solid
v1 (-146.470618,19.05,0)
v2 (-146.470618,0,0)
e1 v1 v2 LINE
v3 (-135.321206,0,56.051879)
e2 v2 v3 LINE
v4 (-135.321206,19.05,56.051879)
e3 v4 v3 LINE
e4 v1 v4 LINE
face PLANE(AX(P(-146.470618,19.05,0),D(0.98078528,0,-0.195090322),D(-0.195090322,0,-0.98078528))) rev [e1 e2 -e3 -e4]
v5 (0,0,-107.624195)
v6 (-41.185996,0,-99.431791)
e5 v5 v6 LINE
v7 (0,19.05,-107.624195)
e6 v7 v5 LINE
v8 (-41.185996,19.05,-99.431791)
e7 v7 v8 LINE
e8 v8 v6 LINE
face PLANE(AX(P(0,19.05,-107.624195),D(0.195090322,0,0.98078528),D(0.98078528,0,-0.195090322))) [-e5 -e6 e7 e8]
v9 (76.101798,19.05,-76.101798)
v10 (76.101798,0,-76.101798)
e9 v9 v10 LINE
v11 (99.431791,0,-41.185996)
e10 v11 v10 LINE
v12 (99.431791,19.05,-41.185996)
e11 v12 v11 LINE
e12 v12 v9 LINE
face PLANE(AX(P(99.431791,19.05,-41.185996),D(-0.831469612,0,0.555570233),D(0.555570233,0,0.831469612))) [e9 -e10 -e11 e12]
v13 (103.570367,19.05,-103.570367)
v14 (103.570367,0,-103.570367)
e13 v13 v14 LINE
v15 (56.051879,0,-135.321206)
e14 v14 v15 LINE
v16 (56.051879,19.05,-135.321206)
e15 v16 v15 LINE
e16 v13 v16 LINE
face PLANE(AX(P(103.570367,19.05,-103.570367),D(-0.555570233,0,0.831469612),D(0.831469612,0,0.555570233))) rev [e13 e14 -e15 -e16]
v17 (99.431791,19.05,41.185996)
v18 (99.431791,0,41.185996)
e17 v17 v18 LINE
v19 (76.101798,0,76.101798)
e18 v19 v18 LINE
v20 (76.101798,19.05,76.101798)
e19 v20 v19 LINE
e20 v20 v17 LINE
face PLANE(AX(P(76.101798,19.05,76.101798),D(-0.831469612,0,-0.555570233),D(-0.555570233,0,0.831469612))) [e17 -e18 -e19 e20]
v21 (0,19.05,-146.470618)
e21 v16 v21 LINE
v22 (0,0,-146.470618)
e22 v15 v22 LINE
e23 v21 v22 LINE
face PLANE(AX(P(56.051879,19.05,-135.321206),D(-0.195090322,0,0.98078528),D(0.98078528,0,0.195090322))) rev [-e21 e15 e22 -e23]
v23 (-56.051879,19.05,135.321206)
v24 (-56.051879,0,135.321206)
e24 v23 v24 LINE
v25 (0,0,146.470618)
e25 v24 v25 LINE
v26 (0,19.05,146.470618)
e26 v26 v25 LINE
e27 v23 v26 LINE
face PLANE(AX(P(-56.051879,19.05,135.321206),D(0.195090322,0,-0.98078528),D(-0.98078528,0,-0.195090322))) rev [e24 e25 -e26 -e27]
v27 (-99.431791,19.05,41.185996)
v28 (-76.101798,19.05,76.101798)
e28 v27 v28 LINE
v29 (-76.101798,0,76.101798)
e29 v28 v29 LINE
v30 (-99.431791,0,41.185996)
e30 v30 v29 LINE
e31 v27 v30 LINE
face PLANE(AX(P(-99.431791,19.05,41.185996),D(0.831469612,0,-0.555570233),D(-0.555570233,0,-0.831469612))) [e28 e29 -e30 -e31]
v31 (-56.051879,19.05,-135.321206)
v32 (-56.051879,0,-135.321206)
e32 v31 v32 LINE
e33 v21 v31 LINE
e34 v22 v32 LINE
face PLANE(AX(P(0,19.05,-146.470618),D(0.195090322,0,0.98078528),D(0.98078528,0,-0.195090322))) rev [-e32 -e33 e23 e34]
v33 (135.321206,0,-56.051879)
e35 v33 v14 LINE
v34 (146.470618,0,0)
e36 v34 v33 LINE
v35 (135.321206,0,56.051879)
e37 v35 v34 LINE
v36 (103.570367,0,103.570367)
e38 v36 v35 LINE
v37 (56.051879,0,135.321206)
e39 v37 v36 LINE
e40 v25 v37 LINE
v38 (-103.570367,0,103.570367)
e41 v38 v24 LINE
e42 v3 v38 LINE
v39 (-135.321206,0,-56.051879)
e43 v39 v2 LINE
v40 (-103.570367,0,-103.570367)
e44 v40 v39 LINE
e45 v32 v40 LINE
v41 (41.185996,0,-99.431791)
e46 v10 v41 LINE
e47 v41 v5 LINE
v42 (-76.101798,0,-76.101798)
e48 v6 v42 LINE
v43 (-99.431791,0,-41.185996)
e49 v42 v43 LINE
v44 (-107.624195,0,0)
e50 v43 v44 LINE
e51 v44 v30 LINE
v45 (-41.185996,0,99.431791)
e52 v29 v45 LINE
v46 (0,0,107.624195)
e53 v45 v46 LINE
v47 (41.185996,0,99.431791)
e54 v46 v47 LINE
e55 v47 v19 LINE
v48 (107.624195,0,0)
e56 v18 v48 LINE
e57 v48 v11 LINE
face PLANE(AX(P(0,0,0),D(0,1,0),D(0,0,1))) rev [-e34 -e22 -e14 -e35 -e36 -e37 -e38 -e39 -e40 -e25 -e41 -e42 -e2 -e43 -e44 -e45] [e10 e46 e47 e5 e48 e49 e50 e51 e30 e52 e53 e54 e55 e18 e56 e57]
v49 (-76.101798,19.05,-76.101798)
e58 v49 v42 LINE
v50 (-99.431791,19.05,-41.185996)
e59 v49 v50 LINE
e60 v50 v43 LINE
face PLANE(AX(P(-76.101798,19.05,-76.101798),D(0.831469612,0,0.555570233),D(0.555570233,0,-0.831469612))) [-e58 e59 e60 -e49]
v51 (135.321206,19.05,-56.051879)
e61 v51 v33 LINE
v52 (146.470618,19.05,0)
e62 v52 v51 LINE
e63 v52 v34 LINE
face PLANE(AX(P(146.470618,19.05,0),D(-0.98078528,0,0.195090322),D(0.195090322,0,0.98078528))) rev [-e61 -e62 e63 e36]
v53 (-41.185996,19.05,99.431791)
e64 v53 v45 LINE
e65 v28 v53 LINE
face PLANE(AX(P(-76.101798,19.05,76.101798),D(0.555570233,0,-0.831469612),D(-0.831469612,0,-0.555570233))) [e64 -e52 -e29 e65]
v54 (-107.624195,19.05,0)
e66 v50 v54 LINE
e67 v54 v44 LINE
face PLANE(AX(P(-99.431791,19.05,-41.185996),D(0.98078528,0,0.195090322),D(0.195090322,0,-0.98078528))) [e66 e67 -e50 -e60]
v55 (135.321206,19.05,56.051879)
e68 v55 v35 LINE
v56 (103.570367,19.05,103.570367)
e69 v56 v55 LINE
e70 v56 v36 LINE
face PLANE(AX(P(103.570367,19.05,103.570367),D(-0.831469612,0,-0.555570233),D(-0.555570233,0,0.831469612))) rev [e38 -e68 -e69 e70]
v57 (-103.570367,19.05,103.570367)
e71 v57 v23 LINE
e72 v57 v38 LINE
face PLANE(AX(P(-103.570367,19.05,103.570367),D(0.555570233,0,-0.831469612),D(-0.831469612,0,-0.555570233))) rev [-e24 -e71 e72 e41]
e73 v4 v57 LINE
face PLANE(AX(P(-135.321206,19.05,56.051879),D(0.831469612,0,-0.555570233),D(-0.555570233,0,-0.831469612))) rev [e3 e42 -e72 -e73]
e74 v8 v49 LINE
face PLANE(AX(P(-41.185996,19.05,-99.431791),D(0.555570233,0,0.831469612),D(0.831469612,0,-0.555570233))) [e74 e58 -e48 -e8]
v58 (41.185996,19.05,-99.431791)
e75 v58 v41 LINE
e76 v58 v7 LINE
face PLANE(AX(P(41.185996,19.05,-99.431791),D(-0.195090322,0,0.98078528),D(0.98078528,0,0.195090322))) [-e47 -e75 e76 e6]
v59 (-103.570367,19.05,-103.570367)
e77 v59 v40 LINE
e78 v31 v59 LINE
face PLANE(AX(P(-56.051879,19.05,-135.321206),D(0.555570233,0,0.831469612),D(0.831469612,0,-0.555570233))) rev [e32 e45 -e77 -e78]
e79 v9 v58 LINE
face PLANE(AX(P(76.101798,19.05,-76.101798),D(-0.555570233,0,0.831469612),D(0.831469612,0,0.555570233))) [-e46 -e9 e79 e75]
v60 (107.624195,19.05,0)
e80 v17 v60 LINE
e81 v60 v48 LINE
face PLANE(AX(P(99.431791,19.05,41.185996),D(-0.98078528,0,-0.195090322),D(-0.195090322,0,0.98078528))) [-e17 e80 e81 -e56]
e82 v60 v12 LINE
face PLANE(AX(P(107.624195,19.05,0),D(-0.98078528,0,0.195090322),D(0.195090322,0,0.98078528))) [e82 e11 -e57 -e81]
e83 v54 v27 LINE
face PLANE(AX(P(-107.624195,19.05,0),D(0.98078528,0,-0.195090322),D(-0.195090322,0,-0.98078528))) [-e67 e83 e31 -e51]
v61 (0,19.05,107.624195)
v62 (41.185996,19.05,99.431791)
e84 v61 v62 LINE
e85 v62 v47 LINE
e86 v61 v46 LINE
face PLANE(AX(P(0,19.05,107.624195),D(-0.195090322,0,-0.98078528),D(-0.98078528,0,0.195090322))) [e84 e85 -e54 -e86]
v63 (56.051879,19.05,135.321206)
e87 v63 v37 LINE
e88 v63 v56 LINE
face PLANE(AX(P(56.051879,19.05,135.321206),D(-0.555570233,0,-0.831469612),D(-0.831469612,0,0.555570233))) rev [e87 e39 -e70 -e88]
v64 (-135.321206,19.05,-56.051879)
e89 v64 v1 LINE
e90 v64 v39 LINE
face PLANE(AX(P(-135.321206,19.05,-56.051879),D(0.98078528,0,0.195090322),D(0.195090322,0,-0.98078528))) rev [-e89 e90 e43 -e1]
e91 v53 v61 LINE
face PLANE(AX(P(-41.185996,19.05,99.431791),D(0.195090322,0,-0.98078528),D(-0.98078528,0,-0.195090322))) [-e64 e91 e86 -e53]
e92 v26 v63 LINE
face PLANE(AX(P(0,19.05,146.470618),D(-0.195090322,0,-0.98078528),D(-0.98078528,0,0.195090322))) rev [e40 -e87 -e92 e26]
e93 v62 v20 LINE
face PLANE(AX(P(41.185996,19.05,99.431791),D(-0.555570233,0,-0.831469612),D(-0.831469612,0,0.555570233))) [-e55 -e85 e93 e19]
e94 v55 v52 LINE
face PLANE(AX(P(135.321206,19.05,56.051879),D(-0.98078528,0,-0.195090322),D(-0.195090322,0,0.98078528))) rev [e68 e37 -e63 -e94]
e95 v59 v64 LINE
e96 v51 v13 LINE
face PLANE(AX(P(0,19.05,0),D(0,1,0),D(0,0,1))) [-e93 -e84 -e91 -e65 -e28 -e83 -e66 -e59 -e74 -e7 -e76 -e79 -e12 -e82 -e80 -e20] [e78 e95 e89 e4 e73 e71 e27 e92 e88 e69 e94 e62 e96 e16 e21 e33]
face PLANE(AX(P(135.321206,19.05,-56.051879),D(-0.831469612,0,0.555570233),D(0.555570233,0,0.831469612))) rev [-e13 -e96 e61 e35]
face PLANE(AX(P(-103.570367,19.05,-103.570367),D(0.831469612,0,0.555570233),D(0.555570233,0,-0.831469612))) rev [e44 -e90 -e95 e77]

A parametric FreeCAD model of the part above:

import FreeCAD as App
import Part
import Sketcher

V = App.Vector
Q = App.Units.Quantity

doc = App.newDocument("Part")
body = doc.addObject("PartDesign::Body", "Body")

sketch1 = doc.addObject("Sketcher::SketchObject", "Sketch")
body.addObject(sketch1)
sketch1.AttachmentSupport = (doc.XZ_Plane, [""])
sketch1.MapMode = "FlatFace"
sketch1.addGeometry(Part.LineSegment(V(146, 0, 0), V(135, -56, 0)), False)
sketch1.addGeometry(Part.LineSegment(V(135, -56, 0), V(104, -104, 0)), False)
sketch1.addGeometry(Part.LineSegment(V(104, -104, 0), V(56, -135, 0)), False)
sketch1.addGeometry(Part.LineSegment(V(56, -135, 0), V(0, -146, 0)), False)
sketch1.addGeometry(Part.LineSegment(V(0, -146, 0), V(-56, -135, 0)), False)
sketch1.addGeometry(Part.LineSegment(V(-56, -135, 0), V(-104, -104, 0)), False)
sketch1.addGeometry(Part.LineSegment(V(-104, -104, 0), V(-135, -56, 0)), False)
sketch1.addGeometry(Part.LineSegment(V(-135, -56, 0), V(-146, 0, 0)), False)
sketch1.addGeometry(Part.LineSegment(V(-146, 0, 0), V(-135, 56, 0)), False)
sketch1.addGeometry(Part.LineSegment(V(-135, 56, 0), V(-104, 104, 0)), False)
sketch1.addGeometry(Part.LineSegment(V(-104, 104, 0), V(-56, 135, 0)), False)
sketch1.addGeometry(Part.LineSegment(V(-56, 135, 0), V(0, 146, 0)), False)
sketch1.addGeometry(Part.LineSegment(V(0, 146, 0), V(56, 135, 0)), False)
sketch1.addGeometry(Part.LineSegment(V(56, 135, 0), V(104, 104, 0)), False)
sketch1.addGeometry(Part.LineSegment(V(104, 104, 0), V(135, 56, 0)), False)
sketch1.addGeometry(Part.LineSegment(V(135, 56, 0), V(146, 0, 0)), False)
sketch1.addGeometry(Part.LineSegment(V(99, -41, 0), V(108, 0, 0)), False)
sketch1.addGeometry(Part.LineSegment(V(108, 0, 0), V(99, 41, 0)), False)
sketch1.addGeometry(Part.LineSegment(V(99, 41, 0), V(76, 76, 0)), False)
sketch1.addGeometry(Part.LineSegment(V(76, 76, 0), V(41, 99, 0)), False)
sketch1.addGeometry(Part.LineSegment(V(41, 99, 0), V(0, 108, 0)), False)
sketch1.addGeometry(Part.LineSegment(V(0, 108, 0), V(-41, 99, 0)), False)
sketch1.addGeometry(Part.LineSegment(V(-41, 99, 0), V(-76, 76, 0)), False)
sketch1.addGeometry(Part.LineSegment(V(-76, 76, 0), V(-99, 41, 0)), False)
sketch1.addGeometry(Part.LineSegment(V(-99, 41, 0), V(-108, 0, 0)), False)
sketch1.addGeometry(Part.LineSegment(V(-108, 0, 0), V(-99, -41, 0)), False)
sketch1.addGeometry(Part.LineSegment(V(-99, -41, 0), V(-76, -76, 0)), False)
sketch1.addGeometry(Part.LineSegment(V(-76, -76, 0), V(-41, -99, 0)), False)
sketch1.addGeometry(Part.LineSegment(V(-41, -99, 0), V(0, -108, 0)), False)
sketch1.addGeometry(Part.LineSegment(V(0, -108, 0), V(41, -99, 0)), False)
sketch1.addGeometry(Part.LineSegment(V(41, -99, 0), V(76, -76, 0)), False)
sketch1.addGeometry(Part.LineSegment(V(76, -76, 0), V(99, -41, 0)), False)
sketch1.addConstraint(Sketcher.Constraint("Coincident", 0, 2, 1, 1))
sketch1.addConstraint(Sketcher.Constraint("Coincident", 1, 2, 2, 1))
sketch1.addConstraint(Sketcher.Constraint("Coincident", 2, 2, 3, 1))
sketch1.addConstraint(Sketcher.Constraint("Coincident", 3, 2, 4, 1))
sketch1.addConstraint(Sketcher.Constraint("Coincident", 4, 2, 5, 1))
sketch1.addConstraint(Sketcher.Constraint("Coincident", 5, 2, 6, 1))
sketch1.addConstraint(Sketcher.Constraint("Coincident", 6, 2, 7, 1))
sketch1.addConstraint(Sketcher.Constraint("Coincident", 7, 2, 8, 1))
sketch1.addConstraint(Sketcher.Constraint("Coincident", 8, 2, 9, 1))
sketch1.addConstraint(Sketcher.Constraint("Coincident", 9, 2, 10, 1))
sketch1.addConstraint(Sketcher.Constraint("Coincident", 10, 2, 11, 1))
sketch1.addConstraint(Sketcher.Constraint("Coincident", 11, 2, 12, 1))
sketch1.addConstraint(Sketcher.Constraint("Coincident", 12, 2, 13, 1))
sketch1.addConstraint(Sketcher.Constraint("Coincident", 13, 2, 14, 1))
sketch1.addConstraint(Sketcher.Constraint("Coincident", 14, 2, 15, 1))
sketch1.addConstraint(Sketcher.Constraint("Coincident", 15, 2, 0, 1))
sketch1.addConstraint(Sketcher.Constraint("Coincident", 16, 2, 17, 1))
sketch1.addConstraint(Sketcher.Constraint("Coincident", 17, 2, 18, 1))
sketch1.addConstraint(Sketcher.Constraint("Coincident", 18, 2, 19, 1))
sketch1.addConstraint(Sketcher.Constraint("Coincident", 19, 2, 20, 1))
sketch1.addConstraint(Sketcher.Constraint("Coincident", 20, 2, 21, 1))
sketch1.addConstraint(Sketcher.Constraint("Coincident", 21, 2, 22, 1))
sketch1.addConstraint(Sketcher.Constraint("Coincident", 22, 2, 23, 1))
sketch1.addConstraint(Sketcher.Constraint("Coincident", 23, 2, 24, 1))
sketch1.addConstraint(Sketcher.Constraint("Coincident", 24, 2, 25, 1))
sketch1.addConstraint(Sketcher.Constraint("Coincident", 25, 2, 26, 1))
sketch1.addConstraint(Sketcher.Constraint("Coincident", 26, 2, 27, 1))
sketch1.addConstraint(Sketcher.Constraint("Coincident", 27, 2, 28, 1))
sketch1.addConstraint(Sketcher.Constraint("Coincident", 28, 2, 29, 1))
sketch1.addConstraint(Sketcher.Constraint("Coincident", 29, 2, 30, 1))
sketch1.addConstraint(Sketcher.Constraint("Coincident", 30, 2, 31, 1))
sketch1.addConstraint(Sketcher.Constraint("Coincident", 31, 2, 16, 1))
sketch1.addConstraint(Sketcher.Constraint("Symmetric", 0, 2, 8, 2, -1, 1))
sketch1.addConstraint(Sketcher.Constraint("Symmetric", 1, 2, 9, 2, -1, 1))
sketch1.addConstraint(Sketcher.Constraint("Symmetric", 2, 2, 10, 2, -1, 1))
sketch1.addConstraint(Sketcher.Constraint("Symmetric", 3, 2, 11, 2, -1, 1))
sketch1.addConstraint(Sketcher.Constraint("Symmetric", 4, 2, 12, 2, -1, 1))
sketch1.addConstraint(Sketcher.Constraint("Symmetric", 5, 2, 13, 2, -1, 1))
sketch1.addConstraint(Sketcher.Constraint("Symmetric", 6, 2, 14, 2, -1, 1))
sketch1.addConstraint(Sketcher.Constraint("Symmetric", 7, 2, 15, 2, -1, 1))
sketch1.addConstraint(Sketcher.Constraint("Symmetric", 16, 2, 24, 2, -1, 1))
sketch1.addConstraint(Sketcher.Constraint("Symmetric", 17, 2, 25, 2, -1, 1))
sketch1.addConstraint(Sketcher.Constraint("Symmetric", 18, 2, 26, 2, -1, 1))
sketch1.addConstraint(Sketcher.Constraint("Symmetric", 19, 2, 27, 2, -1, 1))
sketch1.addConstraint(Sketcher.Constraint("Symmetric", 20, 2, 28, 2, -1, 1))
sketch1.addConstraint(Sketcher.Constraint("Symmetric", 21, 2, 29, 2, -1, 1))
sketch1.addConstraint(Sketcher.Constraint("Symmetric", 22, 2, 30, 2, -1, 1))
sketch1.addConstraint(Sketcher.Constraint("Symmetric", 23, 2, 31, 2, -1, 1))
sketch1.addConstraint(Sketcher.Constraint("Symmetric", 2, 2, 4, 2, -2))
sketch1.addConstraint(Sketcher.Constraint("Symmetric", 1, 2, 5, 2, -2))
sketch1.addConstraint(Sketcher.Constraint("Symmetric", 0, 2, 6, 2, -2))
sketch1.addConstraint(Sketcher.Constraint("Symmetric", 19, 2, 21, 2, -2))
sketch1.addConstraint(Sketcher.Constraint("Symmetric", 18, 2, 22, 2, -2))
sketch1.addConstraint(Sketcher.Constraint("Symmetric", 17, 2, 23, 2, -2))
sketch1.addConstraint(Sketcher.Constraint("PointOnObject", 3, 2, -2))
sketch1.addConstraint(Sketcher.Constraint("PointOnObject", 7, 2, -1))
sketch1.addConstraint(Sketcher.Constraint("PointOnObject", 16, 2, -1))
sketch1.addConstraint(Sketcher.Constraint("PointOnObject", 20, 2, -2))
sketch1.addConstraint(Sketcher.Constraint("Perpendicular", 0, 4))
sketch1.addConstraint(Sketcher.Constraint("Perpendicular", 1, 5))
sketch1.addConstraint(Sketcher.Constraint("Perpendicular", 12, 16))
sketch1.addConstraint(Sketcher.Constraint("Parallel", 14, 18))
sketch1.addConstraint(Sketcher.Constraint("Parallel", 13, 19))
sketch1.addConstraint(Sketcher.Constraint("Perpendicular", 16, 20))
sketch1.addConstraint(Sketcher.Constraint("Equal", 0, 1))
sketch1.addConstraint(Sketcher.Constraint("Equal", 1, 2))
sketch1.addConstraint(Sketcher.Constraint("Equal", 2, 3))
sketch1.addConstraint(Sketcher.Constraint("Equal", 17, 18))
sketch1.addConstraint(Sketcher.Constraint("Equal", 18, 19))
sketch1.addConstraint(Sketcher.Constraint("Equal", 19, 20))
sketch1.addConstraint(Sketcher.Constraint("Distance", 0, Q("2.25 in")))
sketch1.addConstraint(Sketcher.Constraint("Angle", 0, Q("-101.25 deg")))
sketch1.addConstraint(Sketcher.Constraint("Angle", 1, Q("-123.75 deg")))
sketch1.addConstraint(Sketcher.Constraint("DistanceY", 17, 2, 18, 2, Q("34.915802 mm")))
pad1 = doc.addObject("PartDesign::Pad", "Pad")
body.addObject(pad1)
pad1.Profile = sketch1
pad1.Length = Q("0.75 in")
pad1.Reversed = True

doc.recompute()
